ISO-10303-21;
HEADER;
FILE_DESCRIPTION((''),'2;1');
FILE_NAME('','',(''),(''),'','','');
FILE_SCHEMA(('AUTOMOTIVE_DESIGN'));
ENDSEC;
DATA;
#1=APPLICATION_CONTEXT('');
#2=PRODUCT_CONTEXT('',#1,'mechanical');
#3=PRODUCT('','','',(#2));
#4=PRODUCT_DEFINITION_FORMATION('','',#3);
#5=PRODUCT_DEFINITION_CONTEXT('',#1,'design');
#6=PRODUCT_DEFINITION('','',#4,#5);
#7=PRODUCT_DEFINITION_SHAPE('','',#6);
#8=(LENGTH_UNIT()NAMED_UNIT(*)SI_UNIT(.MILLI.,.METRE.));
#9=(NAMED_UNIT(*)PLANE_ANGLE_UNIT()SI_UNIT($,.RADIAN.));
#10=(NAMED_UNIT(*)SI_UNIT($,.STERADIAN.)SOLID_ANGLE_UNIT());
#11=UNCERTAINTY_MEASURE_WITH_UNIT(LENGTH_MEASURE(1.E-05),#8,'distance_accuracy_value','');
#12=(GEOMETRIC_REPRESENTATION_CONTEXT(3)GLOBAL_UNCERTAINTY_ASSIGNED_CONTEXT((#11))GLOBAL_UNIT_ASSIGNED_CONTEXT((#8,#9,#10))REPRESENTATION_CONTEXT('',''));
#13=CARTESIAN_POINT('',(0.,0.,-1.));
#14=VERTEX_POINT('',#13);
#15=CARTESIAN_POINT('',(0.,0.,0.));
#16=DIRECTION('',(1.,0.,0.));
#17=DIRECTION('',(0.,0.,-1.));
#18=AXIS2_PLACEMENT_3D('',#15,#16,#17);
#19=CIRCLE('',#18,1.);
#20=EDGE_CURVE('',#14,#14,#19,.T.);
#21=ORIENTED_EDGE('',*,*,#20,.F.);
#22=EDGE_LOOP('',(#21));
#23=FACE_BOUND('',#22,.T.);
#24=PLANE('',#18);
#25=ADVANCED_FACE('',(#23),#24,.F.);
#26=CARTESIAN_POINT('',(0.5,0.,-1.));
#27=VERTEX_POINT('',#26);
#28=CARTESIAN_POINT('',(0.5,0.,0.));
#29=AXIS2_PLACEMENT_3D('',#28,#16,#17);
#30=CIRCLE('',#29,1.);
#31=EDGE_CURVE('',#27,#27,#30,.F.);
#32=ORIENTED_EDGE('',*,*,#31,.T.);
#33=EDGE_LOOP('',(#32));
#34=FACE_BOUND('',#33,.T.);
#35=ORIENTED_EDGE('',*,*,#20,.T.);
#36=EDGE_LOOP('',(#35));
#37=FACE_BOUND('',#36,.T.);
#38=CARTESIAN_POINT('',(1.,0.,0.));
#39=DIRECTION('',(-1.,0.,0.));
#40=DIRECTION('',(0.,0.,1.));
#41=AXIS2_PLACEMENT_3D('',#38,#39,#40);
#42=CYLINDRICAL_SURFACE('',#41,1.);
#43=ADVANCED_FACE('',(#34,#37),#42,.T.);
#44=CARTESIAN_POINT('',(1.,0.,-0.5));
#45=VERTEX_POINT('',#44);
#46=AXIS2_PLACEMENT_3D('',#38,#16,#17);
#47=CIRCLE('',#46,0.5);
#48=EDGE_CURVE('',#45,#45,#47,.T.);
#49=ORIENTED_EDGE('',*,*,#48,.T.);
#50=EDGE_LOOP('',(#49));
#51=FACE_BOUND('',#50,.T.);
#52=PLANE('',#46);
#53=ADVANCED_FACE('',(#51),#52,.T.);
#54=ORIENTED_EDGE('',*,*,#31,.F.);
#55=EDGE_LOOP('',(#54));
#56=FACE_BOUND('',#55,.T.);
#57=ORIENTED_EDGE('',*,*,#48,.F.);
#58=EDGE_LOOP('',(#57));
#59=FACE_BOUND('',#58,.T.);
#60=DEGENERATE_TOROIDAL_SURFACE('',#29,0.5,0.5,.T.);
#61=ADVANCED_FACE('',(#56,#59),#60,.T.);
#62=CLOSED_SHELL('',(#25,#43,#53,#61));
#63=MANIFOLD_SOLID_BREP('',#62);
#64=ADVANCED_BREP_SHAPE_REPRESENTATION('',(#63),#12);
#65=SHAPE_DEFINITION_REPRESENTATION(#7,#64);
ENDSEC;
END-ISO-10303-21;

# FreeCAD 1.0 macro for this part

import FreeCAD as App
import Part
import Sketcher


def edges_at(feature, points):
    """Names of the edges that pass closest to the given points."""
    edges = feature.Shape.Edges
    near = lambda p: min(range(len(edges)), key=lambda i: edges[i].distToShape(Part.Vertex(*p))[0])
    return sorted({f"Edge{near(p) + 1}" for p in points})

doc = App.newDocument("Part")
body = doc.addObject("PartDesign::Body", "Body")

sketch1 = body.newObject("Sketcher::SketchObject", "Sketch")
sketch1.AttachmentSupport = (doc.getObject("YZ_Plane"), [""])
sketch1.MapMode = "FlatFace"
sketch1.addGeometry(Part.Circle(App.Vector(0, 0, 0), App.Vector(0, 0, 1), 1), False)
sketch1.addConstraint(Sketcher.Constraint("Coincident", 0, 3, -1, 1))
sketch1.addConstraint(Sketcher.Constraint("Diameter", 0, 2.0))
pad1 = body.newObject("PartDesign::Pad", "Pad")
pad1.Profile = sketch1
pad1.Length = 1
doc.recompute()

fillet = body.newObject("PartDesign::Fillet", "Fillet")
fillet.Base = (pad1, edges_at(pad1, [(1, 0, 1)]))
fillet.Radius = 0.5

doc.recompute()
